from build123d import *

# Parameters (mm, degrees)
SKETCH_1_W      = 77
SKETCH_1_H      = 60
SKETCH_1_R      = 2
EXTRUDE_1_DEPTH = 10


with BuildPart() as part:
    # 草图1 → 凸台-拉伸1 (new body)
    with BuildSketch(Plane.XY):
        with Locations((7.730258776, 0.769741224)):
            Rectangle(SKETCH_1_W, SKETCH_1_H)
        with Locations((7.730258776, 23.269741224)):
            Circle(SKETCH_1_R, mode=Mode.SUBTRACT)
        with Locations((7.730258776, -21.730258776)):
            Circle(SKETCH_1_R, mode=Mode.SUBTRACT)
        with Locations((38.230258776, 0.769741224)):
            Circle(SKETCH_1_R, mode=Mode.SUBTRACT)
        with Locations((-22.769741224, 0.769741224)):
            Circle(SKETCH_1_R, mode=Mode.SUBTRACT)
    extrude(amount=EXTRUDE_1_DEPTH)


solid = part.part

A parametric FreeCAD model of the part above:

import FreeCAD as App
import Part
import Sketcher

V = App.Vector
Q = App.Units.Quantity

doc = App.newDocument("Part")
body = doc.addObject("PartDesign::Body", "Body")

sketch1 = body.newObject("Sketcher::SketchObject", "Sketch")
sketch1.AttachmentSupport = (doc.getObject("XY_Plane"), [""])
sketch1.MapMode = "FlatFace"
sketch1.addGeometry([
    Part.LineSegment(V(-30.8, 30.8, 0), V(-30.8, -29.2, 0)),
    Part.LineSegment(V(-30.8, -29.2, 0), V(46.2, -29.2, 0)),
    Part.LineSegment(V(46.2, -29.2, 0), V(46.2, 30.8, 0)),
    Part.LineSegment(V(46.2, 30.8, 0), V(-30.8, 30.8, 0)),
    Part.Circle(V(-22.8, 0.8, 0), V(0, 0, 1), 2),
    Part.Circle(V(7.7, -21.7, 0), V(0, 0, 1), 2),
    Part.Circle(V(38.2, 0.8, 0), V(0, 0, 1), 2),
    Part.Circle(V(7.7, 23.3, 0), V(0, 0, 1), 2),
], False)
sketch1.addConstraint([
    Sketcher.Constraint("Coincident", 0, 2, 1, 1),
    Sketcher.Constraint("Coincident", 1, 2, 2, 1),
    Sketcher.Constraint("Coincident", 2, 2, 3, 1),
    Sketcher.Constraint("Coincident", 3, 2, 0, 1),
    Sketcher.Constraint("Vertical", 0),
    Sketcher.Constraint("Horizontal", 1),
    Sketcher.Constraint("Vertical", 2),
    Sketcher.Constraint("Horizontal", 3),
    Sketcher.Constraint("Equal", 4, 5),
    Sketcher.Constraint("Equal", 5, 6),
    Sketcher.Constraint("Equal", 6, 7),
    Sketcher.Constraint("Horizontal", 4, 3, 6, 3),
    Sketcher.Constraint("Vertical", 5, 3, 7, 3),
    Sketcher.Constraint("Diameter", 4, Q("4 mm")),
    Sketcher.Constraint("DistanceX", 1, 1, 1, 2, Q("77 mm")),
    Sketcher.Constraint("DistanceY", 0, 2, 0, 1, Q("60 mm")),
    Sketcher.Constraint("DistanceX", 4, 3, 6, 3, Q("61 mm")),
    Sketcher.Constraint("DistanceY", 5, 3, 7, 3, Q("45 mm")),
    Sketcher.Constraint("DistanceX", 0, 2, 4, 3, Q("8 mm")),
    Sketcher.Constraint("DistanceY", 0, 2, 4, 3, Q("30 mm")),
    Sketcher.Constraint("DistanceX", 4, 3, 5, 3, Q("30.5 mm")),
    Sketcher.Constraint("DistanceY", 5, 3, 4, 3, Q("22.5 mm")),
    Sketcher.Constraint("DistanceX", 4, 3, -1, 1, Q("22.769741 mm")),
    Sketcher.Constraint("DistanceY", -1, 1, 4, 3, Q("0.769741 mm")),
])
pad1 = body.newObject("PartDesign::Pad", "Pad")
pad1.Profile = sketch1
pad1.Length = 10

doc.recompute()
